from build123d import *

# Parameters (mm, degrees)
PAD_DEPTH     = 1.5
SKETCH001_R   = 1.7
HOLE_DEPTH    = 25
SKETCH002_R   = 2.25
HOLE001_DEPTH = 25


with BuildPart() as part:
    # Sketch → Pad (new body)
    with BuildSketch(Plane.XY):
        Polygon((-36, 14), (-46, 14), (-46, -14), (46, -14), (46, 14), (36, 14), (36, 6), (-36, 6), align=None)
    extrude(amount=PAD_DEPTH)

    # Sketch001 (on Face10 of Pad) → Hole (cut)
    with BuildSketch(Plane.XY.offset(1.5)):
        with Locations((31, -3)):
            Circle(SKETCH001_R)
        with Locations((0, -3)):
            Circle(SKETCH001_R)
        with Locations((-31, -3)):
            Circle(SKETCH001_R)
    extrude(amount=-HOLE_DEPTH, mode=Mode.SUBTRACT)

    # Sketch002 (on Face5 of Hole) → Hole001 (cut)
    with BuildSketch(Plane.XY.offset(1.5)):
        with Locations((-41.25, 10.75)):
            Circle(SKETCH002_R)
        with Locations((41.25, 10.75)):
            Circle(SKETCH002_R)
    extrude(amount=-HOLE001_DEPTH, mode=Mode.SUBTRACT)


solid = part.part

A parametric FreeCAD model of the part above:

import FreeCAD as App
import Part
import Sketcher


def add_polygon(sketch, points):
    """Adds a closed chain of lines whose ends are joined by coincident constraints."""
    first, n = sketch.GeometryCount, len(points)
    for a, b in zip(points, points[1:] + points[:1]):
        sketch.addGeometry(Part.LineSegment(App.Vector(*a, 0), App.Vector(*b, 0)), False)
    for i in range(n):
        sketch.addConstraint(Sketcher.Constraint("Coincident", first + i, 2, first + (i + 1) % n, 1))

doc = App.newDocument("Part")
params = doc.addObject("Spreadsheet::Sheet", "Params")
for row, (alias, value) in enumerate([
    ("sketch1_width", "10 mm"),
    ("sketch1_width2", "92 mm"),
    ("sketch1_height", "28 mm"),
    ("sketch1_height2", "8 mm"),
    ("pad1_length", "1.5 mm"),
    ("sketch2_diameter", "3.4 mm"),
    ("pocket1_length", "25 mm"),
    ("sketch3_diameter", "4.5 mm"),
    ("pocket2_length", "25 mm"),
], start=1):
    params.set(f"A{row}", alias)
    params.set(f"B{row}", "=" + value)
    params.setAlias(f"B{row}", alias)

body = doc.addObject("PartDesign::Body", "Body")

# Sketch on XY plane
sketch1 = body.newObject("Sketcher::SketchObject", "Sketch")
sketch1.AttachmentSupport = (doc.getObject("XY_Plane"), [""])
sketch1.MapMode = "FlatFace"
add_polygon(sketch1, [(-36, 14), (-46, 14), (-46, -14), (46, -14), (46, 14), (36, 14), (36, 6), (-36, 6)])  # lines 0-7
sketch1.addConstraint(Sketcher.Constraint("Horizontal", 0))
sketch1.addConstraint(Sketcher.Constraint("Vertical", 1))
sketch1.addConstraint(Sketcher.Constraint("Horizontal", 2))
sketch1.addConstraint(Sketcher.Constraint("Vertical", 3))
sketch1.addConstraint(Sketcher.Constraint("Horizontal", 4))
sketch1.addConstraint(Sketcher.Constraint("Vertical", 5))
sketch1.addConstraint(Sketcher.Constraint("Horizontal", 6))
sketch1.addConstraint(Sketcher.Constraint("Vertical", 7))
sketch1.addConstraint(Sketcher.Constraint("Symmetric", 0, 2, 2, 2, -1, 1))
sketch1.addConstraint(Sketcher.Constraint("Symmetric", 4, 2, 7, 2, -2))
sketch1.addConstraint(Sketcher.Constraint("DistanceX", 0, 2, 0, 1, 10.0))
sketch1.addConstraint(Sketcher.Constraint("DistanceX", 2, 1, 2, 2, 92.0))
sketch1.addConstraint(Sketcher.Constraint("DistanceY", 1, 2, 1, 1, 28.0))
sketch1.addConstraint(Sketcher.Constraint("DistanceY", 5, 2, 5, 1, 8.0))
sketch1.setExpression("Constraints[18]", "Params.sketch1_width")
sketch1.setExpression("Constraints[19]", "Params.sketch1_width2")
sketch1.setExpression("Constraints[20]", "Params.sketch1_height")
sketch1.setExpression("Constraints[21]", "Params.sketch1_height2")
pad1 = body.newObject("PartDesign::Pad", "Pad")
pad1.Profile = sketch1
pad1.setExpression("Length", "Params.pad1_length")

# Sketch on XY plane
sketch2 = body.newObject("Sketcher::SketchObject", "Sketch001")
sketch2.AttachmentSupport = (doc.getObject("XY_Plane"), [""])
sketch2.MapMode = "FlatFace"
sketch2.AttachmentOffset = App.Placement(App.Vector(0, 0, 1.5), App.Rotation())
sketch2.addGeometry(Part.Circle(App.Vector(31, -3, 0), App.Vector(0, 0, 1), 1.7), False)
sketch2.addGeometry(Part.Circle(App.Vector(0, -3, 0), App.Vector(0, 0, 1), 1.7), False)
sketch2.addGeometry(Part.Circle(App.Vector(-31, -3, 0), App.Vector(0, 0, 1), 1.7), False)
sketch2.addConstraint(Sketcher.Constraint("Equal", 0, 1))
sketch2.addConstraint(Sketcher.Constraint("Equal", 1, 2))
sketch2.addConstraint(Sketcher.Constraint("Symmetric", 0, 3, 2, 3, -2))
sketch2.addConstraint(Sketcher.Constraint("PointOnObject", 1, 3, -2))
sketch2.addConstraint(Sketcher.Constraint("Horizontal", 0, 3, 1, 3))
sketch2.addConstraint(Sketcher.Constraint("Diameter", 0, 3.4))
sketch2.addConstraint(Sketcher.Constraint("DistanceX", -1, 1, 0, 3, 31.0))
sketch2.addConstraint(Sketcher.Constraint("DistanceY", 0, 3, -1, 1, 3.0))
sketch2.setExpression("Constraints[5]", "Params.sketch2_diameter")
pocket1 = body.newObject("PartDesign::Pocket", "Pocket")
pocket1.Profile = sketch2
pocket1.setExpression("Length", "Params.pocket1_length")

# Sketch on XY plane
sketch3 = body.newObject("Sketcher::SketchObject", "Sketch002")
sketch3.AttachmentSupport = (doc.getObject("XY_Plane"), [""])
sketch3.MapMode = "FlatFace"
sketch3.AttachmentOffset = App.Placement(App.Vector(0, 0, 1.5), App.Rotation())
sketch3.addGeometry(Part.Circle(App.Vector(-41.25, 10.75, 0), App.Vector(0, 0, 1), 2.25), False)
sketch3.addGeometry(Part.Circle(App.Vector(41.25, 10.75, 0), App.Vector(0, 0, 1), 2.25), False)
sketch3.addConstraint(Sketcher.Constraint("Equal", 0, 1))
sketch3.addConstraint(Sketcher.Constraint("Symmetric", 0, 3, 1, 3, -2))
sketch3.addConstraint(Sketcher.Constraint("Diameter", 0, 4.5))
sketch3.addConstraint(Sketcher.Constraint("DistanceX", 0, 3, 1, 3, 82.5))
sketch3.addConstraint(Sketcher.Constraint("DistanceY", -1, 1, 0, 3, 10.75))
sketch3.setExpression("Constraints[2]", "Params.sketch3_diameter")
pocket2 = body.newObject("PartDesign::Pocket", "Pocket001")
pocket2.Profile = sketch3
pocket2.setExpression("Length", "Params.pocket2_length")

doc.recompute()
